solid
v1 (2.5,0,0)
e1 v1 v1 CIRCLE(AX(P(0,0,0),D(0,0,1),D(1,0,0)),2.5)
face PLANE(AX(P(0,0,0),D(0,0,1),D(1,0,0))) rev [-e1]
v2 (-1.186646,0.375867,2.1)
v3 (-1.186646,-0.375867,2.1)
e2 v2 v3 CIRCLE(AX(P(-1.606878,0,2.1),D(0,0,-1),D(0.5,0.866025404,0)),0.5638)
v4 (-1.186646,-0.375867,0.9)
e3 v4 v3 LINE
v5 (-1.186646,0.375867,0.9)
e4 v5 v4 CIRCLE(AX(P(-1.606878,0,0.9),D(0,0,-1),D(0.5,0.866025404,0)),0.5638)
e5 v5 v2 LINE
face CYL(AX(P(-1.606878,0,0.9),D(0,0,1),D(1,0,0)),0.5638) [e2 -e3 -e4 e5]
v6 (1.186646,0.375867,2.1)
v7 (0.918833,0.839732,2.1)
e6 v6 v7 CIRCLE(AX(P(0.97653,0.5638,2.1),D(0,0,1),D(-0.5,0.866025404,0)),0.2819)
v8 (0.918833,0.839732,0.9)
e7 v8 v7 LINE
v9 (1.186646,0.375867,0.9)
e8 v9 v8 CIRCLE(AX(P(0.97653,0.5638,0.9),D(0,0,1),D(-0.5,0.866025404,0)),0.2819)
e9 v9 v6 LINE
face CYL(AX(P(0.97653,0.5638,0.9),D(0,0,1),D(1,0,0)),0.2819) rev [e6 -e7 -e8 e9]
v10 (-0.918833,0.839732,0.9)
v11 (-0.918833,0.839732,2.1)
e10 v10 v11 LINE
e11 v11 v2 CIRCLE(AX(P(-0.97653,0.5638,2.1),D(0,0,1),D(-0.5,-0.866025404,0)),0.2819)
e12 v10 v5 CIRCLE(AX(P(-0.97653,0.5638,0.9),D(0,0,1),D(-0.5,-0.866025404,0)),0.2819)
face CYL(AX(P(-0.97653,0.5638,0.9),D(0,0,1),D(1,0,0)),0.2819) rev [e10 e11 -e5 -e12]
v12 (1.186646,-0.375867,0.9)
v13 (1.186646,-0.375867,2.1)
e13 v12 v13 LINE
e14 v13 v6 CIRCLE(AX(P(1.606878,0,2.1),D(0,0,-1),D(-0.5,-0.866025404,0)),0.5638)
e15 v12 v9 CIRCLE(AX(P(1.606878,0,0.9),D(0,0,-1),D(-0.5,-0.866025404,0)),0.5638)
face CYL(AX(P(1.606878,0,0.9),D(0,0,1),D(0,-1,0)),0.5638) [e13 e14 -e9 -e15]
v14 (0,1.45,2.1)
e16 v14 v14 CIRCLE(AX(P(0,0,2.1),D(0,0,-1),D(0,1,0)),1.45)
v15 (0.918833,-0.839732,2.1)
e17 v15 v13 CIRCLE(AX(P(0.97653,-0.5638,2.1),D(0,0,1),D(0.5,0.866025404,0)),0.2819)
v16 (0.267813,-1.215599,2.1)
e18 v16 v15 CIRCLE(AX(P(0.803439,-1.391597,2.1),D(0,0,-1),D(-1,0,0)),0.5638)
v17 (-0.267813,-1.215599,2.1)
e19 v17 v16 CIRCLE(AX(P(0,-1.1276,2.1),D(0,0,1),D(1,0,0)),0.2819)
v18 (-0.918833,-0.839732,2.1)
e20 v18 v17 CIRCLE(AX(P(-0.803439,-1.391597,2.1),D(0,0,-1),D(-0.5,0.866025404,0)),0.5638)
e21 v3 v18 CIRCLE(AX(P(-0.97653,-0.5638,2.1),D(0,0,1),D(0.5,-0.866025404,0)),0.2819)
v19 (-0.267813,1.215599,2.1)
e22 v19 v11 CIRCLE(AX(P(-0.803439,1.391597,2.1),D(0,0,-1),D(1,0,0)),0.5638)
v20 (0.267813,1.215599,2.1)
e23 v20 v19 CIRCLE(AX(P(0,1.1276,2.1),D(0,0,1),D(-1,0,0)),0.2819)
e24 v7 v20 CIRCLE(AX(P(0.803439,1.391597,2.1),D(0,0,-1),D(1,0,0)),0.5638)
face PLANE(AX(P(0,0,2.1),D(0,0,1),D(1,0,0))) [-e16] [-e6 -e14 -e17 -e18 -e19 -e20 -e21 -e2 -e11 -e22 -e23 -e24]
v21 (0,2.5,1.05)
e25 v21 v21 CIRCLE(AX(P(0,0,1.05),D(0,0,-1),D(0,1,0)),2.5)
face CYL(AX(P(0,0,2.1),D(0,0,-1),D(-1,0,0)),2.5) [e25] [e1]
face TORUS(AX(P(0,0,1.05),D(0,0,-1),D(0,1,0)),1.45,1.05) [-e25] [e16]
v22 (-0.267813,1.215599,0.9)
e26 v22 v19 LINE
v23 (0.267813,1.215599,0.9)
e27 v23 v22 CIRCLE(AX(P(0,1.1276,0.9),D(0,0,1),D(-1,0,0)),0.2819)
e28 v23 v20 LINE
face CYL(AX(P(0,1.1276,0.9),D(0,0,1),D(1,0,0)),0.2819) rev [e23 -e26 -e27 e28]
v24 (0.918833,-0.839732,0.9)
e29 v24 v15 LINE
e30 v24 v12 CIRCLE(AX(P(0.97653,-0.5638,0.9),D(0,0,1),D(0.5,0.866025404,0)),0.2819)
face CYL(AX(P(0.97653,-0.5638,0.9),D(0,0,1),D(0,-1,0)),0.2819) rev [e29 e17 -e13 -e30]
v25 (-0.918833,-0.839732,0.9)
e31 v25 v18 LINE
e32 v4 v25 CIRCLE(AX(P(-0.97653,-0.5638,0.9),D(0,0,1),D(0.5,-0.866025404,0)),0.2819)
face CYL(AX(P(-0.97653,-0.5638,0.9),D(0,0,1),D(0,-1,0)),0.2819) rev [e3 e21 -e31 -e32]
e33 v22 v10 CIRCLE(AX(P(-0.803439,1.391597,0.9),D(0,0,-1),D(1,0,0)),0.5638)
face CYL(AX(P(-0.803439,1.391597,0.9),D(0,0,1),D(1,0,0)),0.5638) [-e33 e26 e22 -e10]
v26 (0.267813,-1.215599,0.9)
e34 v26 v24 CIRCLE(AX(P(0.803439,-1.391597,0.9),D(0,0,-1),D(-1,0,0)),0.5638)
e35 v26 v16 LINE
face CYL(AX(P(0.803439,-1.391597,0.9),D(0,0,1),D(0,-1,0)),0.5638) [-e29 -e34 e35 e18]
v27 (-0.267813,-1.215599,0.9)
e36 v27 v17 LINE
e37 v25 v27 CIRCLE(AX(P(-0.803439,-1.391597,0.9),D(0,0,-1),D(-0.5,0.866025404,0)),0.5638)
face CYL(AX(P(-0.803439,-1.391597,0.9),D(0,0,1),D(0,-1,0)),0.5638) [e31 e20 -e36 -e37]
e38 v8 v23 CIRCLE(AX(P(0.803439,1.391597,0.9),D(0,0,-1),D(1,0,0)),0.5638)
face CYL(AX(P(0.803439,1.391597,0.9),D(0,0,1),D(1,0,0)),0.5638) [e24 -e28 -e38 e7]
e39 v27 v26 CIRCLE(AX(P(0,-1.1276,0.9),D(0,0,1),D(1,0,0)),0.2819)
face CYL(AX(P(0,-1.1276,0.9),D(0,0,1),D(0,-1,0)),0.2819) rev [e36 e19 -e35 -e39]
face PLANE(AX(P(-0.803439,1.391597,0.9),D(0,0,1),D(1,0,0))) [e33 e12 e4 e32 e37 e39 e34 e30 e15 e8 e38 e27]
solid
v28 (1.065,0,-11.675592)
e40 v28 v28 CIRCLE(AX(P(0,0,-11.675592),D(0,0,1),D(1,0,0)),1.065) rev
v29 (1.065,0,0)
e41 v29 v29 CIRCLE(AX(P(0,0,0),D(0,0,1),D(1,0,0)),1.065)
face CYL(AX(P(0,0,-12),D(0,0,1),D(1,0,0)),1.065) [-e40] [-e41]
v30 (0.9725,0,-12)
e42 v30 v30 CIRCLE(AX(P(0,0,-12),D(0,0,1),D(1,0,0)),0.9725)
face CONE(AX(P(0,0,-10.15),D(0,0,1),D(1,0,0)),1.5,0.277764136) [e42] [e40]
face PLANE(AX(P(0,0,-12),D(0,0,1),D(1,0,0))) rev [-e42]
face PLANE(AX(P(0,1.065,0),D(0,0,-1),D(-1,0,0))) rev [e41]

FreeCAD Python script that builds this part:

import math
import FreeCAD as App
import Part
import Sketcher

V = App.Vector
Q = App.Units.Quantity


def add_polygon(sketch, points):
    """Adds a closed chain of lines whose ends are joined by coincident constraints."""
    first, n = sketch.GeometryCount, len(points)
    for a, b in zip(points, points[1:] + points[:1]):
        sketch.addGeometry(Part.LineSegment(App.Vector(*a, 0), App.Vector(*b, 0)), False)
    for i in range(n):
        sketch.addConstraint(Sketcher.Constraint("Coincident", first + i, 2, first + (i + 1) % n, 1))

doc = App.newDocument("Part")
body = doc.addObject("PartDesign::Body", "Body")

# Sketch on XY plane
sketch1 = body.newObject("Sketcher::SketchObject", "Sketch")
sketch1.AttachmentSupport = (doc.getObject("XY_Plane"), [""])
sketch1.MapMode = "FlatFace"
sketch1.addGeometry(Part.Circle(V(0, 0, 0), V(0, 0, 1), 2.5), False)
sketch1.addConstraint([
    Sketcher.Constraint("Coincident", 0, 3, -1, 1),
    Sketcher.Constraint("Diameter", 0, Q("5 mm")),
])
pad1 = body.newObject("PartDesign::Pad", "Pad")
pad1.Profile = sketch1
pad1.Length = 2.1

# Sketch on YZ plane
sketch2 = body.newObject("Sketcher::SketchObject", "Sketch001")
sketch2.AttachmentSupport = (doc.getObject("YZ_Plane"), [""])
sketch2.MapMode = "FlatFace"
sketch2.addGeometry([
    Part.LineSegment(V(2.5, 1.05, 0), V(2.6, 1.05, 0)),  # 0
    Part.LineSegment(V(2.6, 1.05, 0), V(2.6, 2.2, 0)),  # 1
    Part.LineSegment(V(2.6, 2.2, 0), V(1.45, 2.2, 0)),  # 2
    Part.LineSegment(V(1.45, 2.2, 0), V(1.45, 2.1, 0)),  # 3
    Part.ArcOfCircle(Part.Circle(V(1.45, 1.05, 0), V(0, 0, 1), 1.05), math.radians(0), math.radians(90)),  # 4
], False)
sketch2.addConstraint([
    Sketcher.Constraint("Coincident", 0, 2, 1, 1),
    Sketcher.Constraint("Coincident", 1, 2, 2, 1),
    Sketcher.Constraint("Coincident", 2, 2, 3, 1),
    Sketcher.Constraint("Coincident", 3, 2, 4, 2),
    Sketcher.Constraint("Coincident", 4, 1, 0, 1),
    Sketcher.Constraint("Horizontal", 0),
    Sketcher.Constraint("Vertical", 1),
    Sketcher.Constraint("Horizontal", 2),
    Sketcher.Constraint("Vertical", 3),
    Sketcher.Constraint("Horizontal", 4, 3, 0, 2),
    Sketcher.Constraint("Vertical", 4, 3, 2, 2),
    Sketcher.Constraint("Equal", 2, 1),
    Sketcher.Constraint("Radius", 4, Q("1.05 mm")),
    Sketcher.Constraint("DistanceX", 0, 1, 0, 2, Q("0.1 mm")),
    Sketcher.Constraint("DistanceX", -1, 1, 0, 2, Q("2.6 mm")),
    Sketcher.Constraint("DistanceY", -1, 1, 1, 2, Q("2.2 mm")),
])
groove = body.newObject("PartDesign::Groove", "Groove")
groove.Profile = sketch2
groove.ReferenceAxis = (sketch2, ["V_Axis"])
groove.Angle = 360

# Sketch on XY plane
sketch3 = body.newObject("Sketcher::SketchObject", "Sketch002")
sketch3.AttachmentSupport = (doc.getObject("XY_Plane"), [""])
sketch3.MapMode = "FlatFace"
sketch3.AttachmentOffset = App.Placement(V(0, 0, 2.1), App.Rotation())
sketch3.addGeometry([
    Part.LineSegment(V(-0.52, 0.9, 0), V(0, 0, 0)),  # 0
    Part.LineSegment(V(0, 0, 0), V(0.52, 0.9, 0)),  # 1
    Part.ArcOfCircle(Part.Circle(V(0.8, 1.39, 0), V(0, 0, 1), 0.56), math.radians(-162), math.radians(-120)),  # 2
    Part.ArcOfCircle(Part.Circle(V(0, 1.13, 0), V(0, 0, 1), 0.28), math.radians(18), math.radians(162)),  # 3
    Part.ArcOfCircle(Part.Circle(V(-0.8, 1.39, 0), V(0, 0, 1), 0.56), math.radians(-60), math.radians(-18)),  # 4
], False)
sketch3.addConstraint([
    Sketcher.Constraint("Coincident", 0, 2, 1, 1),
    Sketcher.Constraint("Coincident", 1, 2, 2, 2),
    Sketcher.Constraint("Tangent", 2, 1, 3, 1),
    Sketcher.Constraint("Tangent", 3, 2, 4, 2),
    Sketcher.Constraint("Coincident", 4, 1, 0, 1),
    Sketcher.Constraint("Coincident", 0, 2, -1, 1),
    Sketcher.Constraint("Equal", 2, 4),
    Sketcher.Constraint("Symmetric", 2, 3, 4, 3, -2),
    Sketcher.Constraint("Horizontal", 1, 2, 4, 1),
    Sketcher.Constraint("Angle", 0, Q("-60 deg")),
    Sketcher.Constraint("Radius", 2, Q("0.5638 mm")),
    Sketcher.Constraint("Radius", 3, Q("0.2819 mm")),
    Sketcher.Constraint("DistanceY", 3, 3, 2, 1, Q("0.087999 mm")),
    Sketcher.Constraint("DistanceY", -1, 1, 3, 3, Q("1.1276 mm")),
])
pocket1 = body.newObject("PartDesign::Pocket", "Pocket")
pocket1.Profile = sketch3
pocket1.Length = 1.2
doc.recompute()

polarpattern = body.newObject("PartDesign::PolarPattern", "PolarPattern")
polarpattern.Originals = [pocket1]
polarpattern.Axis = (doc.getObject("Z_Axis"), [""])
polarpattern.Angle = 360
polarpattern.Occurrences = 6
body.Tip = polarpattern
body2 = doc.addObject("PartDesign::Body", "Body001")

# Sketch on YZ plane
sketch4 = body2.newObject("Sketcher::SketchObject", "Sketch003")
sketch4.AttachmentSupport = (doc.getObject("YZ_Plane001"), [""])
sketch4.MapMode = "FlatFace"
add_polygon(sketch4, [(1.1, 0), (0, 0), (0, -12), (1.1, -12)])  # lines 0-3
sketch4.addConstraint([
    Sketcher.Constraint("Horizontal", 0),
    Sketcher.Constraint("Vertical", 1),
    Sketcher.Constraint("Horizontal", 2),
    Sketcher.Constraint("Vertical", 3),
    Sketcher.Constraint("Coincident", 0, 2, -1, 1),
    Sketcher.Constraint("DistanceY", 1, 2, 1, 1, Q("12 mm")),
    Sketcher.Constraint("DistanceX", 0, 2, 0, 1, Q("1.065 mm")),
])
revolution = body2.newObject("PartDesign::Revolution", "Revolution")
revolution.Profile = sketch4
revolution.ReferenceAxis = (sketch4, ["V_Axis"])
revolution.Angle = 360

# Sketch on YZ plane
sketch5 = body2.newObject("Sketcher::SketchObject", "Sketch004")
sketch5.AttachmentSupport = (doc.getObject("YZ_Plane001"), [""])
sketch5.MapMode = "FlatFace"
add_polygon(sketch5, [(1.5, -10.2), (1, -12), (0, -12), (0, -13.3), (1.5, -13.3)])  # lines 0-4
sketch5.addConstraint([
    Sketcher.Constraint("Horizontal", 1),
    Sketcher.Constraint("Vertical", 2),
    Sketcher.Constraint("Horizontal", 3),
    Sketcher.Constraint("Vertical", 4),
    Sketcher.Constraint("PointOnObject", 1, 2, -2),
    Sketcher.Constraint("DistanceX", 3, 1, 3, 2, Q("1.5 mm")),
    Sketcher.Constraint("DistanceY", 0, 2, -1, 1, Q("12 mm")),
    Sketcher.Constraint("DistanceY", 2, 2, 2, 1, Q("1.27 mm")),
    Sketcher.Constraint("DistanceY", 4, 1, 4, 2, Q("3.12 mm")),
    Sketcher.Constraint("DistanceX", 1, 2, 1, 1, Q("0.9725 mm")),
])
groove2 = body2.newObject("PartDesign::Groove", "Groove001")
groove2.Profile = sketch5
groove2.ReferenceAxis = (sketch5, ["V_Axis"])
groove2.Angle = 360

doc.recompute()
